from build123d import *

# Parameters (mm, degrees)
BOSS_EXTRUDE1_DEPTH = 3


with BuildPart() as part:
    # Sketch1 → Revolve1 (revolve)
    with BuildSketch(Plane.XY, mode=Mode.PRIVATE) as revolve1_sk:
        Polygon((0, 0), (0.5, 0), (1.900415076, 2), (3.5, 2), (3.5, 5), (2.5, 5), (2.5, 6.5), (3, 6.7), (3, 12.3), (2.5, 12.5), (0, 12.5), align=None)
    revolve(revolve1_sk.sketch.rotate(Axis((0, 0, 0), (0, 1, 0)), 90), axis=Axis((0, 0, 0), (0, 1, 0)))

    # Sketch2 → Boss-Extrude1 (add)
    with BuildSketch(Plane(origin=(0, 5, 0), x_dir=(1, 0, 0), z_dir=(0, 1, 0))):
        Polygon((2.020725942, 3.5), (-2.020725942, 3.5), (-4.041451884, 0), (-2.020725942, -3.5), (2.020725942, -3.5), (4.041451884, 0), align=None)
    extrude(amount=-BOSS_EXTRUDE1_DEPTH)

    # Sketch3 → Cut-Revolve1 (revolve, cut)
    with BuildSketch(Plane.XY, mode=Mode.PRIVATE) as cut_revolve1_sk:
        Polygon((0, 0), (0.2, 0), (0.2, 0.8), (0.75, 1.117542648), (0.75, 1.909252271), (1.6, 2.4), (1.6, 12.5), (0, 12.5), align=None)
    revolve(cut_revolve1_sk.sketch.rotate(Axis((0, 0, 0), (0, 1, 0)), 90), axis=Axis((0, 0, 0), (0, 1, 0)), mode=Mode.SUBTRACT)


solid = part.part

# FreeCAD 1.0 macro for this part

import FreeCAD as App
import Part
import Sketcher

V = App.Vector
Q = App.Units.Quantity


def add_polygon(sketch, points):
    """Adds a closed chain of lines whose ends are joined by coincident constraints."""
    first, n = sketch.GeometryCount, len(points)
    for a, b in zip(points, points[1:] + points[:1]):
        sketch.addGeometry(Part.LineSegment(App.Vector(*a, 0), App.Vector(*b, 0)), False)
    for i in range(n):
        sketch.addConstraint(Sketcher.Constraint("Coincident", first + i, 2, first + (i + 1) % n, 1))

doc = App.newDocument("Part")
body = doc.addObject("PartDesign::Body", "Body")

# Sketch on XY plane
sketch1 = body.newObject("Sketcher::SketchObject", "Sketch")
sketch1.AttachmentSupport = (doc.getObject("XY_Plane"), [""])
sketch1.MapMode = "FlatFace"
add_polygon(sketch1, [(0, 0), (0.5, 0), (1.9, 2), (3.5, 2), (3.5, 5), (2.5, 5), (2.5, 6.5), (3, 6.7), (3, 12.3), (2.5, 12.5), (0, 12.5)])  # lines 0-10
sketch1.addConstraint([
    Sketcher.Constraint("Horizontal", 0),
    Sketcher.Constraint("Horizontal", 2),
    Sketcher.Constraint("Vertical", 3),
    Sketcher.Constraint("Horizontal", 4),
    Sketcher.Constraint("Vertical", 5),
    Sketcher.Constraint("Vertical", 7),
    Sketcher.Constraint("Horizontal", 9),
    Sketcher.Constraint("Vertical", 10),
    Sketcher.Constraint("Coincident", 10, 2, -1, 1),
    Sketcher.Constraint("Vertical", 5, 2, 8, 2),
    Sketcher.Constraint("Equal", 6, 8),
    Sketcher.Constraint("DistanceX", 4, 2, 4, 1, Q("1 mm")),
    Sketcher.Constraint("DistanceY", 3, 1, 3, 2, Q("3 mm")),
    Sketcher.Constraint("Angle", 1, Q("55 deg")),
    Sketcher.Constraint("DistanceX", 0, 1, 0, 2, Q("0.5 mm")),
    Sketcher.Constraint("DistanceX", 9, 2, 9, 1, Q("2.5 mm")),
    Sketcher.Constraint("DistanceY", 5, 1, 5, 2, Q("1.5 mm")),
    Sketcher.Constraint("DistanceY", 7, 1, 7, 2, Q("5.6 mm")),
    Sketcher.Constraint("DistanceY", 10, 2, 10, 1, Q("12.5 mm")),
    Sketcher.Constraint("DistanceY", -1, 1, 1, 2, Q("2 mm")),
    Sketcher.Constraint("DistanceX", -1, 1, 6, 2, Q("3 mm")),
])
revolution = body.newObject("PartDesign::Revolution", "Revolution")
revolution.Profile = sketch1
revolution.ReferenceAxis = (sketch1, ["V_Axis"])
revolution.Angle = 360

# Sketch on XZ plane
sketch2 = body.newObject("Sketcher::SketchObject", "Sketch001")
sketch2.AttachmentSupport = (doc.getObject("XZ_Plane"), [""])
sketch2.MapMode = "FlatFace"
sketch2.AttachmentOffset = App.Placement(V(0, 0, -5), App.Rotation())
add_polygon(sketch2, [(2, -3.5), (-2, -3.5), (-4, 0), (-2, 3.5), (2, 3.5), (4, 0)])  # lines 0-5
sketch2.addConstraint([
    Sketcher.Constraint("Horizontal", 0),
    Sketcher.Constraint("Horizontal", 3),
    Sketcher.Constraint("Symmetric", 0, 2, 3, 2, -1, 1),
    Sketcher.Constraint("Symmetric", 1, 2, 4, 2, -1, 1),
    Sketcher.Constraint("PointOnObject", 1, 2, -1),
    Sketcher.Constraint("Parallel", 2, 5),
    Sketcher.Constraint("Vertical", 0, 2, 2, 2),
    Sketcher.Constraint("Angle", 1, Q("120 deg")),
    Sketcher.Constraint("DistanceY", 0, 2, 2, 2, Q("7 mm")),
    Sketcher.Constraint("DistanceX", 0, 2, 0, 1, Q("4.041452 mm")),
])
pad1 = body.newObject("PartDesign::Pad", "Pad")
pad1.Profile = sketch2
pad1.Length = 3

# Sketch on XY plane
sketch3 = body.newObject("Sketcher::SketchObject", "Sketch002")
sketch3.AttachmentSupport = (doc.getObject("XY_Plane"), [""])
sketch3.MapMode = "FlatFace"
add_polygon(sketch3, [(0, 0), (0.2, 0), (0.2, 0.8), (0.75, 1.12), (0.75, 1.91), (1.6, 2.4), (1.6, 12.5), (0, 12.5)])  # lines 0-7
sketch3.addConstraint([
    Sketcher.Constraint("Horizontal", 0),
    Sketcher.Constraint("Vertical", 1),
    Sketcher.Constraint("Vertical", 3),
    Sketcher.Constraint("Vertical", 5),
    Sketcher.Constraint("Horizontal", 6),
    Sketcher.Constraint("Vertical", 7),
    Sketcher.Constraint("Coincident", 7, 2, -1, 1),
    Sketcher.Constraint("Parallel", 2, 4),
    Sketcher.Constraint("Angle", 2, Q("30 deg")),
    Sketcher.Constraint("DistanceX", 0, 1, 0, 2, Q("0.2 mm")),
    Sketcher.Constraint("DistanceX", 6, 2, 6, 1, Q("1.6 mm")),
    Sketcher.Constraint("DistanceY", 1, 1, 1, 2, Q("0.8 mm")),
    Sketcher.Constraint("DistanceY", 5, 1, 5, 2, Q("10.1 mm")),
    Sketcher.Constraint("DistanceY", 7, 2, 7, 1, Q("12.5 mm")),
    Sketcher.Constraint("DistanceX", -1, 1, 2, 2, Q("0.75 mm")),
])
groove = body.newObject("PartDesign::Groove", "Groove")
groove.Profile = sketch3
groove.ReferenceAxis = (sketch3, ["V_Axis"])
groove.Angle = 360

doc.recompute()
